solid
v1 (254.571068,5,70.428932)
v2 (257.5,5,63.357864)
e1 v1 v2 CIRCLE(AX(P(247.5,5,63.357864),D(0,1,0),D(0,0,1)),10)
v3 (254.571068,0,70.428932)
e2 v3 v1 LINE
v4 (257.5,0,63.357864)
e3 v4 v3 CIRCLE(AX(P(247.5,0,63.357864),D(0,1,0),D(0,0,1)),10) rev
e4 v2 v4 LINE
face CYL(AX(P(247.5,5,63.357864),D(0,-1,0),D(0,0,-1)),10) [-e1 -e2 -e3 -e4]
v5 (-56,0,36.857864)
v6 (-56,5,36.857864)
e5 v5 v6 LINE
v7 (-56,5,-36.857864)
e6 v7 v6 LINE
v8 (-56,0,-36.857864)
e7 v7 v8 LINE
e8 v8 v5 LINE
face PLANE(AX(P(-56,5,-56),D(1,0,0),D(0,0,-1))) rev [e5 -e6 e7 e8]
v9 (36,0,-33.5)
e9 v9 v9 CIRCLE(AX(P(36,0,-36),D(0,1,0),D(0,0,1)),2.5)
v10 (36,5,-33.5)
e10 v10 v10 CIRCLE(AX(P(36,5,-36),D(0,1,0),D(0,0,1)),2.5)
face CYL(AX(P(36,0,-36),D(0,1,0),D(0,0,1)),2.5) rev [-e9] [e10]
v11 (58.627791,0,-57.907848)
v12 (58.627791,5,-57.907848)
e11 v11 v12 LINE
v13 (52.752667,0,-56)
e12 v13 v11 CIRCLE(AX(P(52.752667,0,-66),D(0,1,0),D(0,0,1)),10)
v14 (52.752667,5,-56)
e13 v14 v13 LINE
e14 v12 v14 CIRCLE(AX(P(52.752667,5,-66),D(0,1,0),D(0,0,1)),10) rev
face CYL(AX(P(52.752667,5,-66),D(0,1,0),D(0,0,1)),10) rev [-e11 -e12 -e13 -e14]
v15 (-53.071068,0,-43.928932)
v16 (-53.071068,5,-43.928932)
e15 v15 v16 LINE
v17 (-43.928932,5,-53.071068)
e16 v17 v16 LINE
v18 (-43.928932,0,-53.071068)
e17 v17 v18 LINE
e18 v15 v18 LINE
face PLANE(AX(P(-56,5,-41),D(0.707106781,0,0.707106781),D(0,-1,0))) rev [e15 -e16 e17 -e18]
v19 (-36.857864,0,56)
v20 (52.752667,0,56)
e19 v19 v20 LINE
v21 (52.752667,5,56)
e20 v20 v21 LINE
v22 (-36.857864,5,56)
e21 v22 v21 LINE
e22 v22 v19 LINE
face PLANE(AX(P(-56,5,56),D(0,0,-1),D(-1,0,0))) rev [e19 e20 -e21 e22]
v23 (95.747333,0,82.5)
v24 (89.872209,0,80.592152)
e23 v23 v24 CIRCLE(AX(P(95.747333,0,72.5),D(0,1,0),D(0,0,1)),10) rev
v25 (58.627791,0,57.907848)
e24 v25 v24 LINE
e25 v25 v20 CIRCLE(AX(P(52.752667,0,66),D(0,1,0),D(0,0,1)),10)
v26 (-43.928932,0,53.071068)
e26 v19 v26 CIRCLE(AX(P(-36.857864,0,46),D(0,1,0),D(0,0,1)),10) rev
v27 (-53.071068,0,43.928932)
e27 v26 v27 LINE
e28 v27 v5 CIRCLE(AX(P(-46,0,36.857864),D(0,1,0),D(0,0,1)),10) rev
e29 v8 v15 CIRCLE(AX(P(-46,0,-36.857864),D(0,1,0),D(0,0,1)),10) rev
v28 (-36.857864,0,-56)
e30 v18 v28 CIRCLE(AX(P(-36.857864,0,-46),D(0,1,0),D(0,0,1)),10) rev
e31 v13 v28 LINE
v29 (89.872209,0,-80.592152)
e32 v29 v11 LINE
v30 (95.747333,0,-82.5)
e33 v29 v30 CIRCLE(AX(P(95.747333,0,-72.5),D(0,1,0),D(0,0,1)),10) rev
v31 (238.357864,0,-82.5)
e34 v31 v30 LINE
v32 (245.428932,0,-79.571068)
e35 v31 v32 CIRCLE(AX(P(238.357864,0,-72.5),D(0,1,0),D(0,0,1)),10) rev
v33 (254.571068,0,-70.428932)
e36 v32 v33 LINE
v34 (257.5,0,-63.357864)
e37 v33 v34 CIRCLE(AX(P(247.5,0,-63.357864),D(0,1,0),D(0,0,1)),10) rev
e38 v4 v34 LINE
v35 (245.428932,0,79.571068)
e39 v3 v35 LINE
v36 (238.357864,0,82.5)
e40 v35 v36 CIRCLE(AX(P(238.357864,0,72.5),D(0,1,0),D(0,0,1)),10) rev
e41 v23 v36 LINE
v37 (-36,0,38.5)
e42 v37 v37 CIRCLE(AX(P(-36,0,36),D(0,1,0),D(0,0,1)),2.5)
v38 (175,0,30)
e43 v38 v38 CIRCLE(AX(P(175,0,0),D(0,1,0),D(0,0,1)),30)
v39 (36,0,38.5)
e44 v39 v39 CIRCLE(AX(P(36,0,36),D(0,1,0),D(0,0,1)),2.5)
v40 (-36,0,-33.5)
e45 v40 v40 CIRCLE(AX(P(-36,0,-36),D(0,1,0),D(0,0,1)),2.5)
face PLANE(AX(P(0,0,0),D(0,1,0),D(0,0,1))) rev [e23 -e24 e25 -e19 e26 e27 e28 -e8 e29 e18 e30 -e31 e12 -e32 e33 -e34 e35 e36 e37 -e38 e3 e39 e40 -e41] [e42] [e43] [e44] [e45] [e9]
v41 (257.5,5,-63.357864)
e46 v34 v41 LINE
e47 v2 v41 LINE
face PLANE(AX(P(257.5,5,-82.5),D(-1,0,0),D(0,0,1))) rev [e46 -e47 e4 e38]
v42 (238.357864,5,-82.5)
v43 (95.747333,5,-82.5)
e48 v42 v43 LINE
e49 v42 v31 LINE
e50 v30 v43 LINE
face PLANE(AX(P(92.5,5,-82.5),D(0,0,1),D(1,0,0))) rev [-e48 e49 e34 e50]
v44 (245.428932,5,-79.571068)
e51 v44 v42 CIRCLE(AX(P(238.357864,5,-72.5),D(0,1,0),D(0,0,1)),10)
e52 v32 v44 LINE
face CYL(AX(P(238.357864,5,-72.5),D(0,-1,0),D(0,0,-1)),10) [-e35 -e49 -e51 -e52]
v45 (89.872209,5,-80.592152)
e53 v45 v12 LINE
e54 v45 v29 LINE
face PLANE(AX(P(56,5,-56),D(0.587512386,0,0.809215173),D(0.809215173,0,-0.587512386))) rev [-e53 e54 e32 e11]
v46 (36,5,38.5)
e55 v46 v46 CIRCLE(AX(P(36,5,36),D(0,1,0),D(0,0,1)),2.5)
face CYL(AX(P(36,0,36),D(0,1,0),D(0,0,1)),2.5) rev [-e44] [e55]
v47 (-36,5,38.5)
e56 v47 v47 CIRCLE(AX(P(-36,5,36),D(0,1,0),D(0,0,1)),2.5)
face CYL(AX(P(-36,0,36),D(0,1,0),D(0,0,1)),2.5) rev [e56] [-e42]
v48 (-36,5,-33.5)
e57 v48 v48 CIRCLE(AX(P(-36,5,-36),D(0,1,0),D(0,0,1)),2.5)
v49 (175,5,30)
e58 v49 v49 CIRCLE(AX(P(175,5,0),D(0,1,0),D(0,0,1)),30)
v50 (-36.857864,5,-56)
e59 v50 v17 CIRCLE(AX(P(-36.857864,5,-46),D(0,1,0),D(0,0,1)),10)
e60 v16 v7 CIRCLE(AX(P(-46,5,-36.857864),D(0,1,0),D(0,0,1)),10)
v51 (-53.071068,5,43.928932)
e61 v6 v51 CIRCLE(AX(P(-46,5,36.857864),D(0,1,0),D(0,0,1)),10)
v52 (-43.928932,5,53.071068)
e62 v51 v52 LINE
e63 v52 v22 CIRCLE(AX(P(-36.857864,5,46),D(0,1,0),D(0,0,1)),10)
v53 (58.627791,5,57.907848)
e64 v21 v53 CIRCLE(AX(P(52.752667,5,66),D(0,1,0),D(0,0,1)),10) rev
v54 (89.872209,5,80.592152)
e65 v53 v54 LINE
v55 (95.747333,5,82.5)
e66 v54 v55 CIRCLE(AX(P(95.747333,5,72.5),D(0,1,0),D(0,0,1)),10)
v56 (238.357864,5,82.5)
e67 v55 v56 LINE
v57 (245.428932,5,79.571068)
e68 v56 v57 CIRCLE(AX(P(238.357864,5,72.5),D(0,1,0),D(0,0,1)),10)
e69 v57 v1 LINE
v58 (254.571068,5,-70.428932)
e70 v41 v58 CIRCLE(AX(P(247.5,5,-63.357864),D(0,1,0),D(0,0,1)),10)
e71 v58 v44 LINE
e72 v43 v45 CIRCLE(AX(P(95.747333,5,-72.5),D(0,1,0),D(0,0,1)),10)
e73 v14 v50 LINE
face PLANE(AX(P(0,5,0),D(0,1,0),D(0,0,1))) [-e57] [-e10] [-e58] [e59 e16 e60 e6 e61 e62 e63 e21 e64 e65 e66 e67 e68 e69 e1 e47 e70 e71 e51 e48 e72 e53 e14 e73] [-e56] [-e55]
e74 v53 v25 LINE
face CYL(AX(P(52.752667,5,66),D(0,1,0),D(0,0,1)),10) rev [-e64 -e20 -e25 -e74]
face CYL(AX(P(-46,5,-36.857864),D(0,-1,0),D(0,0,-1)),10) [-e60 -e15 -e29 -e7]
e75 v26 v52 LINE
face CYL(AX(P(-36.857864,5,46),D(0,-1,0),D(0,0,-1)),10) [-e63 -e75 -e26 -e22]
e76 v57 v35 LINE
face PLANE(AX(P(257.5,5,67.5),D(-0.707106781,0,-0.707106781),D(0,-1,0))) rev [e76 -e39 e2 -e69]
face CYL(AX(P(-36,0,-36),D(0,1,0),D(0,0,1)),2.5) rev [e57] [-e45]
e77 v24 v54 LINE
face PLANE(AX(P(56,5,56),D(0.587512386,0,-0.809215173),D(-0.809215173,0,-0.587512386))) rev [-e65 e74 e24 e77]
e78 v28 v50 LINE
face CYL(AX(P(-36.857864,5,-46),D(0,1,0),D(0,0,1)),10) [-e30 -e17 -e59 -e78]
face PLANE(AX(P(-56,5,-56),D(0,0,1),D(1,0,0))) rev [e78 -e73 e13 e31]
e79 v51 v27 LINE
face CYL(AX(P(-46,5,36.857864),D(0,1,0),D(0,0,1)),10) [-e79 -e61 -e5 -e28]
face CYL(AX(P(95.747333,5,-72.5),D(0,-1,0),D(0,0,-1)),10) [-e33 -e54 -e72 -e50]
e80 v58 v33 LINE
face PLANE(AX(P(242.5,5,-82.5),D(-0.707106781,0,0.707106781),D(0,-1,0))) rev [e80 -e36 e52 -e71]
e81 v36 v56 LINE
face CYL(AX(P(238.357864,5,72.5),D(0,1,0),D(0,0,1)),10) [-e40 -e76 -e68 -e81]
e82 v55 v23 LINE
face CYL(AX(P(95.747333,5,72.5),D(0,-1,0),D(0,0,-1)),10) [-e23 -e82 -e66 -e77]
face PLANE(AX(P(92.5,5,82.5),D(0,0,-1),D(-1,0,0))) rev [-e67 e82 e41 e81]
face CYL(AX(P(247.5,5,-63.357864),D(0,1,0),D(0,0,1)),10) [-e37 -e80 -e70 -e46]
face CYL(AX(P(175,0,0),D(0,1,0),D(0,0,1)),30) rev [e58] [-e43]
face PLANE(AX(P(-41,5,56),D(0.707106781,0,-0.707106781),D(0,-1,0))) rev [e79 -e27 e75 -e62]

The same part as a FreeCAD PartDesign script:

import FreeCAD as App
import Part
import Sketcher
from FreeCAD import Vector


def edges_at(feature, points):
    """Names of the edges that pass closest to the given points."""
    edges = feature.Shape.Edges
    near = lambda p: min(range(len(edges)), key=lambda i: edges[i].distToShape(Part.Vertex(*p))[0])
    return sorted({f"Edge{near(p) + 1}" for p in points})

doc = App.newDocument("Part")
body = doc.addObject("PartDesign::Body", "Body")

sketch1 = doc.addObject("Sketcher::SketchObject", "Sketch")
body.addObject(sketch1)
sketch1.AttachmentSupport = (doc.XZ_Plane, [""])
sketch1.MapMode = "FlatFace"
sketch1.addGeometry([
    Part.LineSegment(Vector(92, -82, 0), Vector(56, -56, 0)),
    Part.LineSegment(Vector(56, -56, 0), Vector(-56, -56, 0)),
    Part.LineSegment(Vector(-56, -56, 0), Vector(-56, 56, 0)),
    Part.LineSegment(Vector(-56, 56, 0), Vector(56, 56, 0)),
    Part.LineSegment(Vector(56, 56, 0), Vector(92, 82, 0)),
    Part.LineSegment(Vector(92, 82, 0), Vector(258, 82, 0)),
    Part.LineSegment(Vector(258, 82, 0), Vector(258, -82, 0)),
    Part.LineSegment(Vector(258, -82, 0), Vector(92, -82, 0)),
], False)
sketch1.addConstraint([
    Sketcher.Constraint("Coincident", 0, 2, 1, 1),
    Sketcher.Constraint("Coincident", 1, 2, 2, 1),
    Sketcher.Constraint("Coincident", 2, 2, 3, 1),
    Sketcher.Constraint("Coincident", 3, 2, 4, 1),
    Sketcher.Constraint("Coincident", 4, 2, 5, 1),
    Sketcher.Constraint("Coincident", 5, 2, 6, 1),
    Sketcher.Constraint("Coincident", 6, 2, 7, 1),
    Sketcher.Constraint("Coincident", 7, 2, 0, 1),
    Sketcher.Constraint("Horizontal", 1),
    Sketcher.Constraint("Vertical", 2),
    Sketcher.Constraint("Horizontal", 3),
    Sketcher.Constraint("Horizontal", 5),
    Sketcher.Constraint("Vertical", 6),
    Sketcher.Constraint("Horizontal", 7),
    Sketcher.Constraint("Symmetric", 0, 2, 2, 2, -1, 1),
    Sketcher.Constraint("Symmetric", 4, 2, 7, 2, -1),
    Sketcher.Constraint("Vertical", 0, 2, 3, 2),
    Sketcher.Constraint("Equal", 3, 2),
    Sketcher.Constraint("Equal", 7, 6),
    Sketcher.Constraint("DistanceX", 1, 2, 1, 1, 112.0),
    Sketcher.Constraint("DistanceX", 5, 1, 5, 2, 165.0),
    Sketcher.Constraint("DistanceX", -1, 1, 4, 2, 92.5),
])
pad1 = doc.addObject("PartDesign::Pad", "Pad")
body.addObject(pad1)
pad1.Profile = sketch1
pad1.Length = 5
pad1.Reversed = True
doc.recompute()

chamfer = doc.addObject("PartDesign::Chamfer", "Chamfer")
body.addObject(chamfer)
chamfer.Base = (pad1, edges_at(pad1, [
    (257.5, 2.5, 82.5),
    (-56, 2.5, 56),
    (-56, 2.5, -56),
    (257.5, 2.5, -82.5),
]))
chamfer.Size = 15
doc.recompute()

fillet = doc.addObject("PartDesign::Fillet", "Fillet")
body.addObject(fillet)
fillet.Base = (chamfer, edges_at(chamfer, [
    (92.5, 2.5, 82.5),
    (56, 2.5, 56),
    (56, 2.5, -56),
    (92.5, 2.5, -82.5),
    (-56, 2.5, 41),
    (-56, 2.5, -41),
    (-41, 2.5, -56),
    (-41, 2.5, 56),
    (242.5, 2.5, -82.5),
    (257.5, 2.5, 67.5),
    (257.5, 2.5, -67.5),
    (242.5, 2.5, 82.5),
]))
fillet.Radius = 10

sketch2 = doc.addObject("Sketcher::SketchObject", "Sketch001")
body.addObject(sketch2)
sketch2.AttachmentSupport = (doc.XZ_Plane, [""])
sketch2.MapMode = "FlatFace"
sketch2.AttachmentOffset = App.Placement(Vector(0, 0, -5), App.Rotation())
sketch2.addGeometry([
    Part.Circle(Vector(36, -36, 0), Vector(0, 0, 1), 2.5),
    Part.Circle(Vector(-36, -36, 0), Vector(0, 0, 1), 2.5),
    Part.Circle(Vector(-36, 36, 0), Vector(0, 0, 1), 2.5),
    Part.Circle(Vector(36, 36, 0), Vector(0, 0, 1), 2.5),
    Part.Circle(Vector(175, 0, 0), Vector(0, 0, 1), 30),
], False)
sketch2.addConstraint([
    Sketcher.Constraint("Equal", 0, 1),
    Sketcher.Constraint("Equal", 1, 2),
    Sketcher.Constraint("Equal", 2, 3),
    Sketcher.Constraint("Symmetric", 0, 3, 2, 3, -1, 1),
    Sketcher.Constraint("Symmetric", 1, 3, 3, 3, -1, 1),
    Sketcher.Constraint("Symmetric", 0, 3, 1, 3, -2),
    Sketcher.Constraint("PointOnObject", 4, 3, -1),
    Sketcher.Constraint("Diameter", 0, 5.0),
    Sketcher.Constraint("Diameter", 4, 60.0),
    Sketcher.Constraint("DistanceX", -1, 1, 0, 3, 36.0),
    Sketcher.Constraint("DistanceY", 0, 3, -1, 1, 36.0),
    Sketcher.Constraint("DistanceX", -1, 1, 4, 3, 175.0),
])
pocket1 = doc.addObject("PartDesign::Pocket", "Pocket")
body.addObject(pocket1)
pocket1.Profile = sketch2
pocket1.Type = "ThroughAll"
pocket1.Reversed = True

doc.recompute()
